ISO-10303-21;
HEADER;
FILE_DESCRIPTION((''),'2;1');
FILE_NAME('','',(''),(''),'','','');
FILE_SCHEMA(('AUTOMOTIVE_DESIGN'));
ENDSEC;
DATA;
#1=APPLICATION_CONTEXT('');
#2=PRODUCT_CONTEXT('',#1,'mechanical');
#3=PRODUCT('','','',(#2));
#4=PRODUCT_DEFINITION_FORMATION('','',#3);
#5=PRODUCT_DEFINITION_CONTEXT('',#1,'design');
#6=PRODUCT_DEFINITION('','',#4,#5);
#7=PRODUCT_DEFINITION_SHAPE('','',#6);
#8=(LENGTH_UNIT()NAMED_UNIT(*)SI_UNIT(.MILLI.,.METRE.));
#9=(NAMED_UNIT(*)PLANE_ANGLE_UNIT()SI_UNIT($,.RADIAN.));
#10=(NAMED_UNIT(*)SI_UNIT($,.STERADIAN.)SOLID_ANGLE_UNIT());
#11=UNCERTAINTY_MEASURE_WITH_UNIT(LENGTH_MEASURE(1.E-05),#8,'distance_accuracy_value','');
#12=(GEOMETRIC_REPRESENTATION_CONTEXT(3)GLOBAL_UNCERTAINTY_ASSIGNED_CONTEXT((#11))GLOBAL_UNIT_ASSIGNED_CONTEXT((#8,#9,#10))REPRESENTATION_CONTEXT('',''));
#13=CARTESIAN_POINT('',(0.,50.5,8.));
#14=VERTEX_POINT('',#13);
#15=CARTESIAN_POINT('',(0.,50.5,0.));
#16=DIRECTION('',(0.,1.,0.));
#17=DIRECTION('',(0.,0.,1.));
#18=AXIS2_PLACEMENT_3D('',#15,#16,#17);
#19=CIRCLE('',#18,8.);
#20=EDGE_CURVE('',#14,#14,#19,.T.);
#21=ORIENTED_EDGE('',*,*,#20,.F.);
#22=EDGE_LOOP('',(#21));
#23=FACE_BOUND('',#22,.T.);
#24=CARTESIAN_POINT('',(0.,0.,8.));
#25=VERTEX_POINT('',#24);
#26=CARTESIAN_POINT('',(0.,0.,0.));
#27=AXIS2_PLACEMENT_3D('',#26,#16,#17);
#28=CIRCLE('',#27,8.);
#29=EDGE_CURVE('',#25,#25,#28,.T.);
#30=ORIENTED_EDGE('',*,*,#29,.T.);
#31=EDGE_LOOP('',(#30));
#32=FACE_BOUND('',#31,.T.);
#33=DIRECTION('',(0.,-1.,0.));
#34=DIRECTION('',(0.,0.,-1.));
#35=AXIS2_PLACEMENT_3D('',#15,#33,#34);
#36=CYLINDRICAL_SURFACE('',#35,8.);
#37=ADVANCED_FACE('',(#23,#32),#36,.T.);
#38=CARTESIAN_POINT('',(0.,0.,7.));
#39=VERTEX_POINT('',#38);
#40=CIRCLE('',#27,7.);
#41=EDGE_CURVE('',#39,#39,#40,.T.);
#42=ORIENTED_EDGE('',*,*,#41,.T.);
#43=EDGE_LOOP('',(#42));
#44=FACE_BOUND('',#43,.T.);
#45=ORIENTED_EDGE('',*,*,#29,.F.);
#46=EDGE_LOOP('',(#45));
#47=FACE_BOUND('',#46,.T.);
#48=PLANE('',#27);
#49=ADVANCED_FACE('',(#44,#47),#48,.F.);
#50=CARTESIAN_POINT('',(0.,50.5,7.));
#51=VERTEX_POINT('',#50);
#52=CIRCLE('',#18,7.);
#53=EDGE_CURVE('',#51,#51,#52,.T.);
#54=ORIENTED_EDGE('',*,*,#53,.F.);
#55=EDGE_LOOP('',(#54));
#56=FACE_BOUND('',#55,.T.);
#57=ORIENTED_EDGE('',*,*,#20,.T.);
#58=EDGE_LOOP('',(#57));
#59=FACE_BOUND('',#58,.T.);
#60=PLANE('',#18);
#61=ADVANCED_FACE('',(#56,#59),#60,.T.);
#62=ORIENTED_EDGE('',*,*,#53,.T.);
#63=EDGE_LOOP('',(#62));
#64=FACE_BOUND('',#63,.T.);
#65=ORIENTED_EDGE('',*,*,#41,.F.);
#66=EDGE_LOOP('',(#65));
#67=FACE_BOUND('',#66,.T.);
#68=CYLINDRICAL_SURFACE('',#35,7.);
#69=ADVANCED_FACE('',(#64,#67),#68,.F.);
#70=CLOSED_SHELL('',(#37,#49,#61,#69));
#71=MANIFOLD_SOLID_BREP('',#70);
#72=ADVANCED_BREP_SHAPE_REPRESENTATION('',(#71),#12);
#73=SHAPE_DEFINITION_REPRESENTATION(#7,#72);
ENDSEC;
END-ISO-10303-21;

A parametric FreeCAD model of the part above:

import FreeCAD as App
import Part
import Sketcher
from FreeCAD import Vector
Q = App.Units.Quantity

doc = App.newDocument("Part")
body = doc.addObject("PartDesign::Body", "Body")

# Sketch on XZ plane
sketch1 = doc.addObject("Sketcher::SketchObject", "Sketch")
body.addObject(sketch1)
sketch1.AttachmentSupport = (doc.XZ_Plane, [""])
sketch1.MapMode = "FlatFace"
sketch1.addGeometry([
    Part.Circle(Vector(0, 0, 0), Vector(0, 0, 1), 8),
    Part.Circle(Vector(0, 0, 0), Vector(0, 0, 1), 7),
], False)
sketch1.addConstraint([
    Sketcher.Constraint("Coincident", 0, 3, -1, 1),
    Sketcher.Constraint("Coincident", 1, 3, -1, 1),
    Sketcher.Constraint("Diameter", 0, Q("16 mm")),
    Sketcher.Constraint("Diameter", 1, Q("14 mm")),
])
pad1 = doc.addObject("PartDesign::Pad", "Pad")
body.addObject(pad1)
pad1.Profile = sketch1
pad1.Length = 50.5
pad1.Reversed = True

doc.recompute()
